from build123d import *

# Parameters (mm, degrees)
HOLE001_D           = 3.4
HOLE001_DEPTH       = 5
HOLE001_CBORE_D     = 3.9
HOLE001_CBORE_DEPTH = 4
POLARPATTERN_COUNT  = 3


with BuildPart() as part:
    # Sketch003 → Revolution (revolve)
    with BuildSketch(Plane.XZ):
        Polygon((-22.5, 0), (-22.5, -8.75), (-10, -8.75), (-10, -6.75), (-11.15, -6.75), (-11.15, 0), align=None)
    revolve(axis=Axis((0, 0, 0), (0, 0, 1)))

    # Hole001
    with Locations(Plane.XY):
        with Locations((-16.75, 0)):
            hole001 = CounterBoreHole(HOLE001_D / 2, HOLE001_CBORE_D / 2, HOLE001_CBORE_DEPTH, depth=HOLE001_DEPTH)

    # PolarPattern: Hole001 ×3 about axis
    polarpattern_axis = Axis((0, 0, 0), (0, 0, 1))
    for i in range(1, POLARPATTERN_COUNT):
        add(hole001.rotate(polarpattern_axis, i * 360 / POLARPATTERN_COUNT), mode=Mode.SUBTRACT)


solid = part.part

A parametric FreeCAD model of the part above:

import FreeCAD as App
import Part
import Sketcher

V = App.Vector
Q = App.Units.Quantity


def add_polygon(sketch, points):
    """Adds a closed chain of lines whose ends are joined by coincident constraints."""
    first, n = sketch.GeometryCount, len(points)
    for a, b in zip(points, points[1:] + points[:1]):
        sketch.addGeometry(Part.LineSegment(App.Vector(*a, 0), App.Vector(*b, 0)), False)
    for i in range(n):
        sketch.addConstraint(Sketcher.Constraint("Coincident", first + i, 2, first + (i + 1) % n, 1))

doc = App.newDocument("Part")
params = doc.addObject("Spreadsheet::Sheet", "Params")
for row, (alias, value) in enumerate([
    ("sketch1_height", "2 mm"),
    ("sketch1_width", "12.5 mm"),
    ("sketch1_width2", "1.15 mm"),
    ("sketch1_height2", "8.75 mm"),
    ("revolution_angle", "360 deg"),
    ("sketch2_diameter", "3.4 mm"),
    ("hole_diameter", "3.4 mm"),
    ("hole_depth", "5 mm"),
    ("hole_cbore_diameter", "3.9 mm"),
    ("hole_cbore_depth", "4 mm"),
], start=1):
    params.set(f"A{row}", alias)
    params.set(f"B{row}", "=" + value)
    params.setAlias(f"B{row}", alias)

body = doc.addObject("PartDesign::Body", "Body")

sketch1 = body.newObject("Sketcher::SketchObject", "Sketch")
sketch1.AttachmentSupport = (doc.getObject("XZ_Plane"), [""])
sketch1.MapMode = "FlatFace"
add_polygon(sketch1, [(-22.5, 0), (-22.5, -8.8), (-10, -8.8), (-10, -6.8), (-11.2, -6.8), (-11.2, 0)])
sketch1.addConstraint(Sketcher.Constraint("Vertical", 0))
sketch1.addConstraint(Sketcher.Constraint("Horizontal", 1))
sketch1.addConstraint(Sketcher.Constraint("Vertical", 2))
sketch1.addConstraint(Sketcher.Constraint("Horizontal", 3))
sketch1.addConstraint(Sketcher.Constraint("Vertical", 4))
sketch1.addConstraint(Sketcher.Constraint("Horizontal", 5))
sketch1.addConstraint(Sketcher.Constraint("PointOnObject", 4, 2, -1))
sketch1.addConstraint(Sketcher.Constraint("DistanceY", 2, 1, 2, 2, Q("2 mm")))
sketch1.addConstraint(Sketcher.Constraint("DistanceX", 1, 1, 1, 2, Q("12.5 mm")))
sketch1.addConstraint(Sketcher.Constraint("DistanceX", 1, 2, -1, 1, Q("10 mm")))
sketch1.addConstraint(Sketcher.Constraint("DistanceX", 3, 2, 3, 1, Q("1.15 mm")))
sketch1.addConstraint(Sketcher.Constraint("DistanceY", 0, 2, 0, 1, Q("8.75 mm")))
sketch1.setExpression("Constraints[13]", "Params.sketch1_height")
sketch1.setExpression("Constraints[14]", "Params.sketch1_width")
sketch1.setExpression("Constraints[16]", "Params.sketch1_width2")
sketch1.setExpression("Constraints[17]", "Params.sketch1_height2")
revolution = body.newObject("PartDesign::Revolution", "Revolution")
revolution.Profile = sketch1
revolution.ReferenceAxis = (sketch1, ["V_Axis"])
revolution.setExpression("Angle", "Params.revolution_angle")

sketch2 = body.newObject("Sketcher::SketchObject", "Sketch001")
sketch2.AttachmentSupport = (doc.getObject("XY_Plane"), [""])
sketch2.MapMode = "FlatFace"
sketch2.addGeometry(Part.Circle(V(-16.8, 0, 0), V(0, 0, 1), 1.7), False)
sketch2.addConstraint(Sketcher.Constraint("PointOnObject", 0, 3, -1))
sketch2.addConstraint(Sketcher.Constraint("Diameter", 0, Q("3.4 mm")))
sketch2.addConstraint(Sketcher.Constraint("DistanceX", 0, 3, -1, 1, Q("16.75 mm")))
sketch2.setExpression("Constraints[1]", "Params.sketch2_diameter")
doc.recompute()
hole = body.newObject("PartDesign::Hole", "Hole")
hole.Profile = sketch2
hole.ThreadType = "None"
hole.setExpression("Diameter", "Params.hole_diameter")
hole.DepthType = "Dimension"
hole.setExpression("Depth", "Params.hole_depth")
hole.DrillPoint = "Flat"
hole.HoleCutType = "Counterbore"
hole.setExpression("HoleCutDiameter", "Params.hole_cbore_diameter")
hole.setExpression("HoleCutDepth", "Params.hole_cbore_depth")
doc.recompute()

polarpattern = body.newObject("PartDesign::PolarPattern", "PolarPattern")
polarpattern.Originals = [hole]
polarpattern.Axis = (doc.getObject("Z_Axis"), [""])
polarpattern.Angle = 360
polarpattern.Occurrences = 3
body.Tip = polarpattern

doc.recompute()
